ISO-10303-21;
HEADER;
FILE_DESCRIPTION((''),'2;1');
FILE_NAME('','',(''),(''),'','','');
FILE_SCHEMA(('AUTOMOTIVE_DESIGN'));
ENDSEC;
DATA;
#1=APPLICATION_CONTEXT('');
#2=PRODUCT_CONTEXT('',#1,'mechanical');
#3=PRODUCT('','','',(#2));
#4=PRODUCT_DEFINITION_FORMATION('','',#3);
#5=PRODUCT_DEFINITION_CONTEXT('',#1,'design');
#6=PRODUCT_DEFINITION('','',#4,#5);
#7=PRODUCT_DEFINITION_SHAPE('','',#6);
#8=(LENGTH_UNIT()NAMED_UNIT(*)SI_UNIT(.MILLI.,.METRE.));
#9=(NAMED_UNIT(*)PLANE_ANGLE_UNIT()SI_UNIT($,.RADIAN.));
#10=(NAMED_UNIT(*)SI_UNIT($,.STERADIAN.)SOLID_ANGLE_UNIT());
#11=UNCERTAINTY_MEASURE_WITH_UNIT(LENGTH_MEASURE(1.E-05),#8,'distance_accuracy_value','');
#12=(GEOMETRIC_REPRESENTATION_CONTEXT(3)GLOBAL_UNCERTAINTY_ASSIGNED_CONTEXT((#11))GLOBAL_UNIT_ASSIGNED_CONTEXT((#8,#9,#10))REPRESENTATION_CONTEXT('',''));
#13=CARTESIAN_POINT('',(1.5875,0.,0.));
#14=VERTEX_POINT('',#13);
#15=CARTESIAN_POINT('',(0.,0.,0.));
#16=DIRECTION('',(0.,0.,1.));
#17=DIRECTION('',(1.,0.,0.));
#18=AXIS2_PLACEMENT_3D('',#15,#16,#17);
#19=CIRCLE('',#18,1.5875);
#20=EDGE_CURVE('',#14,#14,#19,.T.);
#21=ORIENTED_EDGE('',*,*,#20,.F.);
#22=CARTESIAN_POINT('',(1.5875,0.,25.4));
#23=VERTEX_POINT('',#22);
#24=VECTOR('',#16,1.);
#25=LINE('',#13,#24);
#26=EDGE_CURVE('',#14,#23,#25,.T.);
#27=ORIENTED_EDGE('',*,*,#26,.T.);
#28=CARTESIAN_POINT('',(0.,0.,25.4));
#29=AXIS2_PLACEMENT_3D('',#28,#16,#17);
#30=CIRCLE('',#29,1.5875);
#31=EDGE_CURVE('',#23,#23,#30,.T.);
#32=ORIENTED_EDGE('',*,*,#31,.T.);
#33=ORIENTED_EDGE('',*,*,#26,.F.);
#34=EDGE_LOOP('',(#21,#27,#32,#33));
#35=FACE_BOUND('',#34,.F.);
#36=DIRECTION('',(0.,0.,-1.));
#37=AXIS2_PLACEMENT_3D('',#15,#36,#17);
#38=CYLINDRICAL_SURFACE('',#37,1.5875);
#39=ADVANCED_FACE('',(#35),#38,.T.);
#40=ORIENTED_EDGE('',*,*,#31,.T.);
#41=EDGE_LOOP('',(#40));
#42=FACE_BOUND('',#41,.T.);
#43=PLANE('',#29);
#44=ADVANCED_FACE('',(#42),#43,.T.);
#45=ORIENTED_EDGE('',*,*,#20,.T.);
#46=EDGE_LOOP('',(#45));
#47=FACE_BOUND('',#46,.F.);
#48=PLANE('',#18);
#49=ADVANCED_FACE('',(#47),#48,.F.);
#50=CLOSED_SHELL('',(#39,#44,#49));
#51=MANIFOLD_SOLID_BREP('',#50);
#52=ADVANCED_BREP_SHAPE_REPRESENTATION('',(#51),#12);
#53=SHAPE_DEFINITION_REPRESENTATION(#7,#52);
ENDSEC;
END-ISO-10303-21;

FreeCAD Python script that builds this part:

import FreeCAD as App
import Part
import Sketcher
from FreeCAD import Vector
Q = App.Units.Quantity

doc = App.newDocument("Part")
body = doc.addObject("PartDesign::Body", "Body")

# Sketch on XY plane
sketch1 = body.newObject("Sketcher::SketchObject", "Sketch")
sketch1.AttachmentSupport = (doc.getObject("XY_Plane"), [""])
sketch1.MapMode = "FlatFace"
sketch1.addGeometry(Part.Circle(Vector(0, 0, 0), Vector(0, 0, 1), 1.6), False)
sketch1.addConstraint(Sketcher.Constraint("Coincident", 0, 3, -1, 1))
sketch1.addConstraint(Sketcher.Constraint("Diameter", 0, Q("0.125 in")))
pad1 = body.newObject("PartDesign::Pad", "Pad")
pad1.Profile = sketch1
pad1.Length = Q("1 in")

doc.recompute()
